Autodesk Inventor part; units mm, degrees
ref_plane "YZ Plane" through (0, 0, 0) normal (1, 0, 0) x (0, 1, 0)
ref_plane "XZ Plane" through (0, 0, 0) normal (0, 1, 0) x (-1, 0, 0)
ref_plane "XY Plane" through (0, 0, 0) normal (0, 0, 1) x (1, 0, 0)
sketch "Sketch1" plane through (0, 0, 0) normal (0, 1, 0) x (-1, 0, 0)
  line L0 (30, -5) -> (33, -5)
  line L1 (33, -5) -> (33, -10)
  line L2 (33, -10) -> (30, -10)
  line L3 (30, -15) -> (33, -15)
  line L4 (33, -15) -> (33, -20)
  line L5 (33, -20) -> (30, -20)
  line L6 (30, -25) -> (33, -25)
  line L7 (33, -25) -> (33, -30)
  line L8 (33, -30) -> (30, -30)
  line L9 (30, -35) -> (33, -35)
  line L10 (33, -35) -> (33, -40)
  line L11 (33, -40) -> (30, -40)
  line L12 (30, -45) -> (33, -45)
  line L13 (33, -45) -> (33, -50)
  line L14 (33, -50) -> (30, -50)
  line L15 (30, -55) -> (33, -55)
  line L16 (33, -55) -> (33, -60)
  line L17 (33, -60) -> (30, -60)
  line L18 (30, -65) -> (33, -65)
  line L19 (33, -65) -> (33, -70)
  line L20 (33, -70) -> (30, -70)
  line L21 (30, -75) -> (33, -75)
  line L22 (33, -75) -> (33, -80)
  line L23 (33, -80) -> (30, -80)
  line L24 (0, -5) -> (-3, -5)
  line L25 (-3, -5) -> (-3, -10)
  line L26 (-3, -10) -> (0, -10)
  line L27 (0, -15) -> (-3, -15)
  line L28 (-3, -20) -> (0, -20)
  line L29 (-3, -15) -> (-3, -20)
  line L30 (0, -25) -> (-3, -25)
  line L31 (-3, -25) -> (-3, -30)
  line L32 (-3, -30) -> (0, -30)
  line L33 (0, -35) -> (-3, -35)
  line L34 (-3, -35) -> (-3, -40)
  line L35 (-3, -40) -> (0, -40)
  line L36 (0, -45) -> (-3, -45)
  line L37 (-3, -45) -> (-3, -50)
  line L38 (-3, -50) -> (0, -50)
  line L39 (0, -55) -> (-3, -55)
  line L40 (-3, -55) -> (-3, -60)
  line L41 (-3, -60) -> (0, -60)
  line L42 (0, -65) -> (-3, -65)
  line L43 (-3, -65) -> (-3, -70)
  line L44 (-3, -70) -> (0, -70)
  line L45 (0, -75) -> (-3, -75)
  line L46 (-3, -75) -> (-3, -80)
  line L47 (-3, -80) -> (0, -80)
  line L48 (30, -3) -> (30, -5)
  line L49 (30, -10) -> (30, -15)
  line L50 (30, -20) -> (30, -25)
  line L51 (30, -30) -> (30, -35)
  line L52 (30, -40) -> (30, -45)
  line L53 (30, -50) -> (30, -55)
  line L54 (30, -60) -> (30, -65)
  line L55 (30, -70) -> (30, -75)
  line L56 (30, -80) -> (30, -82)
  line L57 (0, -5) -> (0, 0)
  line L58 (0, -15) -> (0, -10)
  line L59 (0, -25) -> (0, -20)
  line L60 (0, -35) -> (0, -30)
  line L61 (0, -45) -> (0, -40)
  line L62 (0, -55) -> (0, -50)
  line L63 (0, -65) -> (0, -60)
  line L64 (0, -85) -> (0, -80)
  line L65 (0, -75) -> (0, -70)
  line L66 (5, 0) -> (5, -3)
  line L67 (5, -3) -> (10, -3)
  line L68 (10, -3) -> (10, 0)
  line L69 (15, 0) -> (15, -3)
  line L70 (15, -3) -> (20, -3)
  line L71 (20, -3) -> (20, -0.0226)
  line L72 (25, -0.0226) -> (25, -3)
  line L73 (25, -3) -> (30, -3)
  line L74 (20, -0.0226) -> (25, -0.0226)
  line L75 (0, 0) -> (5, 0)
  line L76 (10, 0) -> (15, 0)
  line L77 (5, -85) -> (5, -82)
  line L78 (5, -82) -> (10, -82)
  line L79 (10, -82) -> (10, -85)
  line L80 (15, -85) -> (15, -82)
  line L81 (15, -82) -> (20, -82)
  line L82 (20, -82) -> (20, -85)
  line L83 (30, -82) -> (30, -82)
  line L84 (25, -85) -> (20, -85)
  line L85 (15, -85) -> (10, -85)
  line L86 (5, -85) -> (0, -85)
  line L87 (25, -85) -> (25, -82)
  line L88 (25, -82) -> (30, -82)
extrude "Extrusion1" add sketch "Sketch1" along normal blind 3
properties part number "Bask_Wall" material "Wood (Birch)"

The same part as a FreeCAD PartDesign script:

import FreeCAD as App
import Part
import Sketcher
from FreeCAD import Vector


def add_polygon(sketch, points):
    """Adds a closed chain of lines whose ends are joined by coincident constraints."""
    first, n = sketch.GeometryCount, len(points)
    for a, b in zip(points, points[1:] + points[:1]):
        sketch.addGeometry(Part.LineSegment(App.Vector(*a, 0), App.Vector(*b, 0)), False)
    for i in range(n):
        sketch.addConstraint(Sketcher.Constraint("Coincident", first + i, 2, first + (i + 1) % n, 1))

doc = App.newDocument("Part")
body = doc.addObject("PartDesign::Body", "Body")

# Sketch on XZ plane
sketch1 = doc.addObject("Sketcher::SketchObject", "Sketch")
body.addObject(sketch1)
sketch1.AttachmentSupport = (doc.XZ_Plane, [""])
sketch1.MapMode = "FlatFace"
add_polygon(sketch1, [(-33, -5), (-30, -5), (-30, -3), (-25, -3), (-25, 0), (-20, 0), (-20, -3), (-15, -3), (-15, 0), (-10, 0), (-10, -3), (-5, -3), (-5, 0), (0, 0), (0, -5), (3, -5), (3, -10), (0, -10), (0, -15), (3, -15), (3, -20), (0, -20), (0, -25), (3, -25), (3, -30), (0, -30), (0, -35), (3, -35), (3, -40), (0, -40), (0, -45), (3, -45), (3, -50), (0, -50), (0, -55), (3, -55), (3, -60), (0, -60), (0, -65), (3, -65), (3, -70), (0, -70), (0, -75), (3, -75), (3, -80), (0, -80), (0, -85), (-5, -85), (-5, -82), (-10, -82), (-10, -85), (-15, -85), (-15, -82), (-20, -82), (-20, -85), (-25, -85), (-25, -82), (-30, -82), (-30, -80), (-33, -80), (-33, -75), (-30, -75), (-30, -70), (-33, -70), (-33, -65), (-30, -65), (-30, -60), (-33, -60), (-33, -55), (-30, -55), (-30, -50), (-33, -50), (-33, -45), (-30, -45), (-30, -40), (-33, -40), (-33, -35), (-30, -35), (-30, -30), (-33, -30), (-33, -25), (-30, -25), (-30, -20), (-33, -20), (-33, -15), (-30, -15), (-30, -10), (-33, -10)])  # lines 0-87
sketch1.addConstraint([
    Sketcher.Constraint("Horizontal", 0),
    Sketcher.Constraint("Vertical", 1),
    Sketcher.Constraint("Horizontal", 2),
    Sketcher.Constraint("Vertical", 3),
    Sketcher.Constraint("Horizontal", 4),
    Sketcher.Constraint("Vertical", 5),
    Sketcher.Constraint("Horizontal", 6),
    Sketcher.Constraint("Vertical", 7),
    Sketcher.Constraint("Horizontal", 8),
    Sketcher.Constraint("Vertical", 9),
    Sketcher.Constraint("Horizontal", 10),
    Sketcher.Constraint("Vertical", 11),
    Sketcher.Constraint("Horizontal", 12),
    Sketcher.Constraint("Vertical", 13),
    Sketcher.Constraint("Horizontal", 14),
    Sketcher.Constraint("Vertical", 15),
    Sketcher.Constraint("Horizontal", 16),
    Sketcher.Constraint("Vertical", 17),
    Sketcher.Constraint("Horizontal", 18),
    Sketcher.Constraint("Vertical", 19),
    Sketcher.Constraint("Horizontal", 20),
    Sketcher.Constraint("Vertical", 21),
    Sketcher.Constraint("Horizontal", 22),
    Sketcher.Constraint("Vertical", 23),
    Sketcher.Constraint("Horizontal", 24),
    Sketcher.Constraint("Vertical", 25),
    Sketcher.Constraint("Horizontal", 26),
    Sketcher.Constraint("Vertical", 27),
    Sketcher.Constraint("Horizontal", 28),
    Sketcher.Constraint("Vertical", 29),
    Sketcher.Constraint("Horizontal", 30),
    Sketcher.Constraint("Vertical", 31),
    Sketcher.Constraint("Horizontal", 32),
    Sketcher.Constraint("Vertical", 33),
    Sketcher.Constraint("Horizontal", 34),
    Sketcher.Constraint("Vertical", 35),
    Sketcher.Constraint("Horizontal", 36),
    Sketcher.Constraint("Vertical", 37),
    Sketcher.Constraint("Horizontal", 38),
    Sketcher.Constraint("Vertical", 39),
    Sketcher.Constraint("Horizontal", 40),
    Sketcher.Constraint("Vertical", 41),
    Sketcher.Constraint("Horizontal", 42),
    Sketcher.Constraint("Vertical", 43),
    Sketcher.Constraint("Horizontal", 44),
    Sketcher.Constraint("Vertical", 45),
    Sketcher.Constraint("Horizontal", 46),
    Sketcher.Constraint("Vertical", 47),
    Sketcher.Constraint("Horizontal", 48),
    Sketcher.Constraint("Vertical", 49),
    Sketcher.Constraint("Horizontal", 50),
    Sketcher.Constraint("Vertical", 51),
    Sketcher.Constraint("Horizontal", 52),
    Sketcher.Constraint("Vertical", 53),
    Sketcher.Constraint("Horizontal", 54),
    Sketcher.Constraint("Vertical", 55),
    Sketcher.Constraint("Horizontal", 56),
    Sketcher.Constraint("Vertical", 57),
    Sketcher.Constraint("Horizontal", 58),
    Sketcher.Constraint("Vertical", 59),
    Sketcher.Constraint("Horizontal", 60),
    Sketcher.Constraint("Vertical", 61),
    Sketcher.Constraint("Horizontal", 62),
    Sketcher.Constraint("Vertical", 63),
    Sketcher.Constraint("Horizontal", 64),
    Sketcher.Constraint("Vertical", 65),
    Sketcher.Constraint("Horizontal", 66),
    Sketcher.Constraint("Vertical", 67),
    Sketcher.Constraint("Horizontal", 68),
    Sketcher.Constraint("Vertical", 69),
    Sketcher.Constraint("Horizontal", 70),
    Sketcher.Constraint("Vertical", 71),
    Sketcher.Constraint("Horizontal", 72),
    Sketcher.Constraint("Vertical", 73),
    Sketcher.Constraint("Horizontal", 74),
    Sketcher.Constraint("Vertical", 75),
    Sketcher.Constraint("Horizontal", 76),
    Sketcher.Constraint("Vertical", 77),
    Sketcher.Constraint("Horizontal", 78),
    Sketcher.Constraint("Vertical", 79),
    Sketcher.Constraint("Horizontal", 80),
    Sketcher.Constraint("Vertical", 81),
    Sketcher.Constraint("Horizontal", 82),
    Sketcher.Constraint("Vertical", 83),
    Sketcher.Constraint("Horizontal", 84),
    Sketcher.Constraint("Vertical", 85),
    Sketcher.Constraint("Horizontal", 86),
    Sketcher.Constraint("Vertical", 87),
    Sketcher.Constraint("Coincident", 12, 2, -1, 1),
    Sketcher.Constraint("PointOnObject", 7, 2, -1),
    Sketcher.Constraint("PointOnObject", 16, 2, -2),
    Sketcher.Constraint("PointOnObject", 20, 2, -2),
    Sketcher.Constraint("PointOnObject", 24, 2, -2),
    Sketcher.Constraint("PointOnObject", 28, 2, -2),
    Sketcher.Constraint("PointOnObject", 32, 2, -2),
    Sketcher.Constraint("PointOnObject", 36, 2, -2),
    Sketcher.Constraint("PointOnObject", 40, 2, -2),
    Sketcher.Constraint("PointOnObject", 44, 2, -2),
    Sketcher.Constraint("Horizontal", 2, 2, 5, 2),
    Sketcher.Constraint("Horizontal", 6, 2, 9, 2),
    Sketcher.Constraint("Horizontal", 0, 2, 13, 2),
    Sketcher.Constraint("Horizontal", 46, 2, 49, 2),
    Sketcher.Constraint("Horizontal", 48, 2, 51, 2),
    Sketcher.Constraint("Horizontal", 50, 2, 53, 2),
    Sketcher.Constraint("Horizontal", 52, 2, 55, 2),
    Sketcher.Constraint("Horizontal", 44, 2, 57, 2),
    Sketcher.Constraint("Horizontal", 42, 2, 59, 2),
    Sketcher.Constraint("Horizontal", 40, 2, 61, 2),
    Sketcher.Constraint("Horizontal", 38, 2, 63, 2),
    Sketcher.Constraint("Horizontal", 36, 2, 65, 2),
    Sketcher.Constraint("Horizontal", 34, 2, 67, 2),
    Sketcher.Constraint("Horizontal", 32, 2, 69, 2),
    Sketcher.Constraint("Horizontal", 30, 2, 71, 2),
    Sketcher.Constraint("Horizontal", 28, 2, 73, 2),
    Sketcher.Constraint("Horizontal", 26, 2, 75, 2),
    Sketcher.Constraint("Horizontal", 24, 2, 77, 2),
    Sketcher.Constraint("Horizontal", 22, 2, 79, 2),
    Sketcher.Constraint("Horizontal", 20, 2, 81, 2),
    Sketcher.Constraint("Horizontal", 18, 2, 83, 2),
    Sketcher.Constraint("Horizontal", 16, 2, 85, 2),
    Sketcher.Constraint("Vertical", 15, 2, 18, 2),
    Sketcher.Constraint("Vertical", 19, 2, 22, 2),
    Sketcher.Constraint("Vertical", 23, 2, 26, 2),
    Sketcher.Constraint("Vertical", 27, 2, 30, 2),
    Sketcher.Constraint("Vertical", 31, 2, 34, 2),
    Sketcher.Constraint("Vertical", 35, 2, 38, 2),
    Sketcher.Constraint("Vertical", 39, 2, 42, 2),
    Sketcher.Constraint("Vertical", 11, 2, 46, 2),
    Sketcher.Constraint("Vertical", 9, 2, 48, 2),
    Sketcher.Constraint("Vertical", 7, 2, 50, 2),
    Sketcher.Constraint("Vertical", 5, 2, 52, 2),
    Sketcher.Constraint("Vertical", 3, 2, 54, 2),
    Sketcher.Constraint("Vertical", 1, 2, 56, 2),
    Sketcher.Constraint("Vertical", 57, 2, 60, 2),
    Sketcher.Constraint("Vertical", 59, 2, 62, 2),
    Sketcher.Constraint("Vertical", 61, 2, 64, 2),
    Sketcher.Constraint("Vertical", 63, 2, 66, 2),
    Sketcher.Constraint("Vertical", 65, 2, 68, 2),
    Sketcher.Constraint("Vertical", 67, 2, 70, 2),
    Sketcher.Constraint("Vertical", 69, 2, 72, 2),
    Sketcher.Constraint("Vertical", 71, 2, 74, 2),
    Sketcher.Constraint("Vertical", 73, 2, 76, 2),
    Sketcher.Constraint("Vertical", 75, 2, 78, 2),
    Sketcher.Constraint("Vertical", 77, 2, 80, 2),
    Sketcher.Constraint("Vertical", 79, 2, 82, 2),
    Sketcher.Constraint("Vertical", 81, 2, 84, 2),
    Sketcher.Constraint("Vertical", 83, 2, 86, 2),
    Sketcher.Constraint("Equal", 2, 4),
    Sketcher.Constraint("Equal", 4, 6),
    Sketcher.Constraint("Equal", 6, 8),
    Sketcher.Constraint("Equal", 8, 10),
    Sketcher.Constraint("Equal", 10, 12),
    Sketcher.Constraint("Equal", 0, 14),
    Sketcher.Constraint("Equal", 86, 7),
    Sketcher.Constraint("Equal", 56, 13),
    Sketcher.Constraint("Equal", 13, 15),
    Sketcher.Constraint("Equal", 15, 17),
    Sketcher.Constraint("Equal", 17, 19),
    Sketcher.Constraint("Equal", 19, 21),
    Sketcher.Constraint("Equal", 21, 23),
    Sketcher.Constraint("Equal", 23, 25),
    Sketcher.Constraint("Equal", 25, 27),
    Sketcher.Constraint("Equal", 27, 29),
    Sketcher.Constraint("Equal", 29, 31),
    Sketcher.Constraint("Equal", 31, 33),
    Sketcher.Constraint("Equal", 33, 35),
    Sketcher.Constraint("Equal", 35, 37),
    Sketcher.Constraint("Equal", 37, 39),
    Sketcher.Constraint("Equal", 39, 41),
    Sketcher.Constraint("Equal", 41, 43),
    Sketcher.Constraint("Equal", 43, 45),
    Sketcher.Constraint("Equal", 11, 47),
    Sketcher.Constraint("DistanceX", 0, 1, 0, 2, 3.0),
    Sketcher.Constraint("DistanceX", 2, 1, 2, 2, 5.0),
    Sketcher.Constraint("DistanceY", 3, 1, 3, 2, 2.9774),
])
pad1 = doc.addObject("PartDesign::Pad", "Pad")
body.addObject(pad1)
pad1.Profile = sketch1
pad1.Length = 3
pad1.Reversed = True

doc.recompute()
